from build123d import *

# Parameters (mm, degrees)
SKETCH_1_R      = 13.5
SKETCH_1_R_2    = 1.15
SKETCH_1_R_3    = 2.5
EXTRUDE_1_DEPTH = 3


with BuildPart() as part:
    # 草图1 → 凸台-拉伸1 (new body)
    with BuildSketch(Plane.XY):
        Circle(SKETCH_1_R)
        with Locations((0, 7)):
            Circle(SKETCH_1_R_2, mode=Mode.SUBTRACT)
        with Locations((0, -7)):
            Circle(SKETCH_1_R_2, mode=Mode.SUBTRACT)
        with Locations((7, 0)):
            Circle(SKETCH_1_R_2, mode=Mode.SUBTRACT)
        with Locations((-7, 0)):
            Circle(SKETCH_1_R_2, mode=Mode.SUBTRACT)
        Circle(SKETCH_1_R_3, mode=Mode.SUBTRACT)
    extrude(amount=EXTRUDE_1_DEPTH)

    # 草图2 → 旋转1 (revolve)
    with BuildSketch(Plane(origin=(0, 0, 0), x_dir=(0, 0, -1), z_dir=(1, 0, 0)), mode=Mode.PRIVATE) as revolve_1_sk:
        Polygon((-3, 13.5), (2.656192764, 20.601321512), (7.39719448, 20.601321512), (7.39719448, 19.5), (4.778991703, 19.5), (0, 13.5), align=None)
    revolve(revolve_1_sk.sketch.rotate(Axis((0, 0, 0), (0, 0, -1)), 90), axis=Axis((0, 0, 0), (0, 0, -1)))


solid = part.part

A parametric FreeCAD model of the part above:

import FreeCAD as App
import Part
import Sketcher

V = App.Vector

doc = App.newDocument("Part")
body = doc.addObject("PartDesign::Body", "Body")

# Sketch on XY plane
sketch1 = body.newObject("Sketcher::SketchObject", "Sketch")
sketch1.AttachmentSupport = (doc.getObject("XY_Plane"), [""])
sketch1.MapMode = "FlatFace"
sketch1.addGeometry(Part.Circle(V(0, 0, 0), V(0, 0, 1), 13.5), False)
sketch1.addGeometry(Part.Circle(V(0, -7, 0), V(0, 0, 1), 1.1), False)
sketch1.addGeometry(Part.Circle(V(-7, 0, 0), V(0, 0, 1), 1.1), False)
sketch1.addGeometry(Part.Circle(V(0, 0, 0), V(0, 0, 1), 2.5), False)
sketch1.addGeometry(Part.Circle(V(7, 0, 0), V(0, 0, 1), 1.1), False)
sketch1.addGeometry(Part.Circle(V(0, 7, 0), V(0, 0, 1), 1.1), False)
sketch1.addConstraint(Sketcher.Constraint("Coincident", 0, 3, -1, 1))
sketch1.addConstraint(Sketcher.Constraint("Coincident", 3, 3, -1, 1))
sketch1.addConstraint(Sketcher.Constraint("Equal", 1, 2))
sketch1.addConstraint(Sketcher.Constraint("Equal", 2, 4))
sketch1.addConstraint(Sketcher.Constraint("Equal", 4, 5))
sketch1.addConstraint(Sketcher.Constraint("Symmetric", 2, 3, 4, 3, -1, 1))
sketch1.addConstraint(Sketcher.Constraint("Symmetric", 1, 3, 5, 3, -1, 1))
sketch1.addConstraint(Sketcher.Constraint("PointOnObject", 1, 3, -2))
sketch1.addConstraint(Sketcher.Constraint("PointOnObject", 2, 3, -1))
sketch1.addConstraint(Sketcher.Constraint("Diameter", 0, 27.0))
sketch1.addConstraint(Sketcher.Constraint("Diameter", 3, 5.0))
sketch1.addConstraint(Sketcher.Constraint("Diameter", 1, 2.3))
sketch1.addConstraint(Sketcher.Constraint("DistanceY", 1, 3, -1, 1, 7.0))
sketch1.addConstraint(Sketcher.Constraint("DistanceX", 2, 3, -1, 1, 7.0))
pad1 = body.newObject("PartDesign::Pad", "Pad")
pad1.Profile = sketch1
pad1.Length = 3

# Sketch on YZ plane
sketch2 = body.newObject("Sketcher::SketchObject", "Sketch001")
sketch2.AttachmentSupport = (doc.getObject("YZ_Plane"), [""])
sketch2.MapMode = "FlatFace"
sketch2.addGeometry(Part.LineSegment(V(20.6, -2.7, 0), V(13.5, 3, 0)), False)
sketch2.addGeometry(Part.LineSegment(V(13.5, 3, 0), V(13.5, 0, 0)), False)
sketch2.addGeometry(Part.LineSegment(V(13.5, 0, 0), V(19.5, -4.8, 0)), False)
sketch2.addGeometry(Part.LineSegment(V(19.5, -4.8, 0), V(19.5, -7.4, 0)), False)
sketch2.addGeometry(Part.LineSegment(V(19.5, -7.4, 0), V(20.6, -7.4, 0)), False)
sketch2.addGeometry(Part.LineSegment(V(20.6, -7.4, 0), V(20.6, -2.7, 0)), False)
sketch2.addConstraint(Sketcher.Constraint("Coincident", 0, 2, 1, 1))
sketch2.addConstraint(Sketcher.Constraint("Coincident", 1, 2, 2, 1))
sketch2.addConstraint(Sketcher.Constraint("Coincident", 2, 2, 3, 1))
sketch2.addConstraint(Sketcher.Constraint("Coincident", 3, 2, 4, 1))
sketch2.addConstraint(Sketcher.Constraint("Coincident", 4, 2, 5, 1))
sketch2.addConstraint(Sketcher.Constraint("Coincident", 5, 2, 0, 1))
sketch2.addConstraint(Sketcher.Constraint("Vertical", 1))
sketch2.addConstraint(Sketcher.Constraint("Vertical", 3))
sketch2.addConstraint(Sketcher.Constraint("Horizontal", 4))
sketch2.addConstraint(Sketcher.Constraint("Vertical", 5))
sketch2.addConstraint(Sketcher.Constraint("PointOnObject", 1, 2, -1))
sketch2.addConstraint(Sketcher.Constraint("Parallel", 0, 2))
sketch2.addConstraint(Sketcher.Constraint("DistanceY", 1, 2, 1, 1, 3.0))
sketch2.addConstraint(Sketcher.Constraint("DistanceX", 1, 2, 2, 2, 6.0))
sketch2.addConstraint(Sketcher.Constraint("DistanceX", -1, 1, 0, 2, 13.5))
sketch2.addConstraint(Sketcher.Constraint("DistanceY", 5, 1, 5, 2, 4.741002))
sketch2.addConstraint(Sketcher.Constraint("DistanceX", 4, 1, 4, 2, 1.101322))
sketch2.addConstraint(Sketcher.Constraint("DistanceY", 2, 2, 5, 2, 2.122799))
revolution = body.newObject("PartDesign::Revolution", "Revolution")
revolution.Profile = sketch2
revolution.ReferenceAxis = (sketch2, ["V_Axis"])
revolution.Angle = 360

doc.recompute()
